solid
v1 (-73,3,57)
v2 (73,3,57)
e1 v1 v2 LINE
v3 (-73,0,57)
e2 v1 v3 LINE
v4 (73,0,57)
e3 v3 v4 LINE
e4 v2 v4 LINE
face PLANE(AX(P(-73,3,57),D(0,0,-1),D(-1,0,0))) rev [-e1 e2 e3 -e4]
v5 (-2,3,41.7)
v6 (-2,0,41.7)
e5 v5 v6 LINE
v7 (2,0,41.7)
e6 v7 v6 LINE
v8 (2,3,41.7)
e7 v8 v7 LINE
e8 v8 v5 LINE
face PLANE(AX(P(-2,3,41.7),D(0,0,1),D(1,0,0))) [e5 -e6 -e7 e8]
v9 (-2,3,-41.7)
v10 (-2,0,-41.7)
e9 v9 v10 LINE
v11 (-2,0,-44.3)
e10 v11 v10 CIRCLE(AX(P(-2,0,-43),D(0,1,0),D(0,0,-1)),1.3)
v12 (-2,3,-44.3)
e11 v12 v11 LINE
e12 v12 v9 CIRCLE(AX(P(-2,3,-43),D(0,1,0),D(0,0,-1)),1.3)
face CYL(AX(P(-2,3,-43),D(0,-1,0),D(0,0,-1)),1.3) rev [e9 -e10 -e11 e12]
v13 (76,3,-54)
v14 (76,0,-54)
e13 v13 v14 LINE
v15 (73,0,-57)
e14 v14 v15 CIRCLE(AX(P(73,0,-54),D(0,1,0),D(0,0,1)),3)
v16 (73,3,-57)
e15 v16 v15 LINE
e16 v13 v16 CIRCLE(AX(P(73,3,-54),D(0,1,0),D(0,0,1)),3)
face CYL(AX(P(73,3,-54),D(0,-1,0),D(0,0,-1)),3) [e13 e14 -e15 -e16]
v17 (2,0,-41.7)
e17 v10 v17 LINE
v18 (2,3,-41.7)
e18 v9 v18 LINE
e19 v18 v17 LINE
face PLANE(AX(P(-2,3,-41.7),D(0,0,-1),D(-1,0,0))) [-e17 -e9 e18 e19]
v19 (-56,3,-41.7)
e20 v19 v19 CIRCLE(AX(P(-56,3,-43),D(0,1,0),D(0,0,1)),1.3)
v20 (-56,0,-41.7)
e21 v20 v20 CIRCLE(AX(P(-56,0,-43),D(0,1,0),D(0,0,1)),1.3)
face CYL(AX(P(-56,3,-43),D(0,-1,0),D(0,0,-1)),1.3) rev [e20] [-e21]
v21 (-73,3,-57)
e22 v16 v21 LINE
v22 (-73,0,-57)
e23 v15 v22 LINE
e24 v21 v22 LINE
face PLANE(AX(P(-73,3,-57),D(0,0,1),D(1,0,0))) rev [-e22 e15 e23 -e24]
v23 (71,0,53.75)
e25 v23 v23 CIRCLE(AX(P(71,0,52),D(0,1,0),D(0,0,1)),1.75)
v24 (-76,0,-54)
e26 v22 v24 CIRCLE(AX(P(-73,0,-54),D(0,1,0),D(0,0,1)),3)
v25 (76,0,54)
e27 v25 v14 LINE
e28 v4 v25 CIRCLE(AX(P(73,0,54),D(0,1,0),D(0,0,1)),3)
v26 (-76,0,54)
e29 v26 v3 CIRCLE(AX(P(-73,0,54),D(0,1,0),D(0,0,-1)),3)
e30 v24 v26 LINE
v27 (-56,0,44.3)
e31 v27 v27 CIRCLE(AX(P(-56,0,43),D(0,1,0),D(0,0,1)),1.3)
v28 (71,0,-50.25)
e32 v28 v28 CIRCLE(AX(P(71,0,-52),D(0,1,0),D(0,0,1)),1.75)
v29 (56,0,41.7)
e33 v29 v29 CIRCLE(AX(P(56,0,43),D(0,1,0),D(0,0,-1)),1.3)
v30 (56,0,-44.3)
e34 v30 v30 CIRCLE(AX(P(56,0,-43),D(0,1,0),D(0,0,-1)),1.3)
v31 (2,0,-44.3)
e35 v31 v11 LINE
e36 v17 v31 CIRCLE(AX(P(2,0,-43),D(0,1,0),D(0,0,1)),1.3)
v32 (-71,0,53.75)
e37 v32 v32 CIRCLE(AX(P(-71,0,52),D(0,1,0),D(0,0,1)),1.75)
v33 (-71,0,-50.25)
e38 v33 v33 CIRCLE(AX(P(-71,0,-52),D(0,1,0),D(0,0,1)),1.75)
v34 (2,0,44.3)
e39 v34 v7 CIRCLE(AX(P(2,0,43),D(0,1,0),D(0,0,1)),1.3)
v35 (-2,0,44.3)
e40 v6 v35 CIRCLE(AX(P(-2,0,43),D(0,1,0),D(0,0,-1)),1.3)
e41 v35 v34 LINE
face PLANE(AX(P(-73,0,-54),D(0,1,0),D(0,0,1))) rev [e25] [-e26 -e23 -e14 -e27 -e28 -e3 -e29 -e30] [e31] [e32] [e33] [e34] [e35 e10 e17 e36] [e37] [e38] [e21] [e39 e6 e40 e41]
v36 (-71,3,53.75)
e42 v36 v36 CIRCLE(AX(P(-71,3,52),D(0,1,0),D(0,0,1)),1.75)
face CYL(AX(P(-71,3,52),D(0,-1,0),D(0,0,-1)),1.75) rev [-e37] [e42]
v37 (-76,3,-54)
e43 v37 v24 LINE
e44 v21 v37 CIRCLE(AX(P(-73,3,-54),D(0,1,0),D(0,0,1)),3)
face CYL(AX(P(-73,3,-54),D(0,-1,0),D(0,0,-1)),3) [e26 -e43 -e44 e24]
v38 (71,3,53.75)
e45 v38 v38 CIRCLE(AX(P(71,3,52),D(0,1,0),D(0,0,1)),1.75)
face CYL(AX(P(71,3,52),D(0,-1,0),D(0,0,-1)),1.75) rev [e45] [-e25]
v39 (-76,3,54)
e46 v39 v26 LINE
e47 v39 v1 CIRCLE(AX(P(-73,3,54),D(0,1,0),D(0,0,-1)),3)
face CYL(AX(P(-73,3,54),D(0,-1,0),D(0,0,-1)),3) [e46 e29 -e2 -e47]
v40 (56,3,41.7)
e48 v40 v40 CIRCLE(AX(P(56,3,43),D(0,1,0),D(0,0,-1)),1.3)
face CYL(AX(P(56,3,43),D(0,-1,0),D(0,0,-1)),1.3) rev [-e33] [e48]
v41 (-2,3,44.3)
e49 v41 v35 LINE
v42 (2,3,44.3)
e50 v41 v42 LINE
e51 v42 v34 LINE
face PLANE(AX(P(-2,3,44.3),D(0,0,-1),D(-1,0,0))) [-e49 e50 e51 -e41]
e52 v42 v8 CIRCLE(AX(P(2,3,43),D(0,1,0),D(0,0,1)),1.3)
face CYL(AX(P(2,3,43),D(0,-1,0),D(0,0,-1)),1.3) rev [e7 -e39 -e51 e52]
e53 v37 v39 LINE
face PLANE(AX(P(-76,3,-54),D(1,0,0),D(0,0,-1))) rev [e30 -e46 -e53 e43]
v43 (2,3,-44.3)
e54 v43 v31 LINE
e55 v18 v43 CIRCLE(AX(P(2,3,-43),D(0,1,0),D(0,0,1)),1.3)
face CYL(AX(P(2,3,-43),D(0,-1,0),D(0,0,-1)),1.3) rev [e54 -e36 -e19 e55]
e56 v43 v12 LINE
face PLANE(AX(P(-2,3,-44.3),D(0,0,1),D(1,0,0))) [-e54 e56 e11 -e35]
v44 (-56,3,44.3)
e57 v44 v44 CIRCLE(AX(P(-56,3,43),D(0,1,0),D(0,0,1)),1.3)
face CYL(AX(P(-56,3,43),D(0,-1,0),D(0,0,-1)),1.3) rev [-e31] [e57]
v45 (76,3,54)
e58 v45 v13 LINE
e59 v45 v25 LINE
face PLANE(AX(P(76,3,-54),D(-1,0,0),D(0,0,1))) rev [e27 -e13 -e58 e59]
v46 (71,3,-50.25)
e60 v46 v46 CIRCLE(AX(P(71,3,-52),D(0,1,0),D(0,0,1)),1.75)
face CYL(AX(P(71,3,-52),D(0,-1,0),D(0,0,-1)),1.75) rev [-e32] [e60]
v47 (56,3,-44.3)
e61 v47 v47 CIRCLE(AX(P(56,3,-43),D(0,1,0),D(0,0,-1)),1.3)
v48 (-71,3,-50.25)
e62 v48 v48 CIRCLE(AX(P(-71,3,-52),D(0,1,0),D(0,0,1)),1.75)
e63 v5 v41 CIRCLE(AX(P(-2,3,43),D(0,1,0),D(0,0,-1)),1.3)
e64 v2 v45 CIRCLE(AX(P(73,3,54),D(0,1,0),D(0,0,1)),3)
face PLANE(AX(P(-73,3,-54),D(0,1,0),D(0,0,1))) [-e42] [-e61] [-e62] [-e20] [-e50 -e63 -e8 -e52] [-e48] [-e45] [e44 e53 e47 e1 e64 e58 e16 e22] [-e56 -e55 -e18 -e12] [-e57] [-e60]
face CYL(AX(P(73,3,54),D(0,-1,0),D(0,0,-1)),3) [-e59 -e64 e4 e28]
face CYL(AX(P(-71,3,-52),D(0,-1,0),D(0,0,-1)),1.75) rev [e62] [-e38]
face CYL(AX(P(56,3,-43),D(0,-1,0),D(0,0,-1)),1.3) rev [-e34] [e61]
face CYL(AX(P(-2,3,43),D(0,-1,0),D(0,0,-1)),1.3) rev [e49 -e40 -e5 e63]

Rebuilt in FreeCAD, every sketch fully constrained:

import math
import FreeCAD as App
import Part
import Sketcher

V = App.Vector

doc = App.newDocument("Part")
body = doc.addObject("PartDesign::Body", "Body")

# Sketch on XZ plane
sketch1 = doc.addObject("Sketcher::SketchObject", "Sketch")
body.addObject(sketch1)
sketch1.AttachmentSupport = (doc.XZ_Plane, [""])
sketch1.MapMode = "FlatFace"
sketch1.addGeometry([
    Part.LineSegment(V(73, -57, 0), V(-73, -57, 0)),  # 0
    Part.ArcOfCircle(Part.Circle(V(-73, -54, 0), V(0, 0, 1), 3), math.radians(180), math.radians(270)),  # 1
    Part.LineSegment(V(-76, -54, 0), V(-76, 54, 0)),  # 2
    Part.ArcOfCircle(Part.Circle(V(-73, 54, 0), V(0, 0, 1), 3), math.radians(90), math.radians(180)),  # 3
    Part.LineSegment(V(-73, 57, 0), V(73, 57, 0)),  # 4
    Part.ArcOfCircle(Part.Circle(V(73, 54, 0), V(0, 0, 1), 3), math.radians(0), math.radians(90)),  # 5
    Part.LineSegment(V(76, 54, 0), V(76, -54, 0)),  # 6
    Part.ArcOfCircle(Part.Circle(V(73, -54, 0), V(0, 0, 1), 3), math.radians(-90), math.radians(0)),  # 7
    Part.Circle(V(71, 52, 0), V(0, 0, 1), 1.8),  # 8
    Part.Circle(V(56, 43, 0), V(0, 0, 1), 1.3),  # 9
    Part.LineSegment(V(-2, 41.7, 0), V(2, 41.7, 0)),  # 10
    Part.ArcOfCircle(Part.Circle(V(2, 43, 0), V(0, 0, 1), 1.3), math.radians(-90), math.radians(90)),  # 11
    Part.LineSegment(V(2, 44.3, 0), V(-2, 44.3, 0)),  # 12
    Part.ArcOfCircle(Part.Circle(V(-2, 43, 0), V(0, 0, 1), 1.3), math.radians(90), math.radians(270)),  # 13
    Part.Circle(V(-71, 52, 0), V(0, 0, 1), 1.8),  # 14
    Part.Circle(V(-56, 43, 0), V(0, 0, 1), 1.3),  # 15
    Part.Circle(V(56, -43, 0), V(0, 0, 1), 1.3),  # 16
    Part.Circle(V(71, -52, 0), V(0, 0, 1), 1.8),  # 17
    Part.LineSegment(V(-2, -44.3, 0), V(2, -44.3, 0)),  # 18
    Part.ArcOfCircle(Part.Circle(V(2, -43, 0), V(0, 0, 1), 1.3), math.radians(-90), math.radians(90)),  # 19
    Part.LineSegment(V(2, -41.7, 0), V(-2, -41.7, 0)),  # 20
    Part.ArcOfCircle(Part.Circle(V(-2, -43, 0), V(0, 0, 1), 1.3), math.radians(90), math.radians(270)),  # 21
    Part.Circle(V(-56, -43, 0), V(0, 0, 1), 1.3),  # 22
    Part.Circle(V(-71, -52, 0), V(0, 0, 1), 1.8),  # 23
], False)
sketch1.addConstraint([
    Sketcher.Constraint("Tangent", 0, 2, 1, 2),
    Sketcher.Constraint("Tangent", 1, 1, 2, 1),
    Sketcher.Constraint("Tangent", 2, 2, 3, 2),
    Sketcher.Constraint("Tangent", 3, 1, 4, 1),
    Sketcher.Constraint("Tangent", 4, 2, 5, 2),
    Sketcher.Constraint("Tangent", 5, 1, 6, 1),
    Sketcher.Constraint("Tangent", 6, 2, 7, 2),
    Sketcher.Constraint("Tangent", 7, 1, 0, 1),
    Sketcher.Constraint("Tangent", 10, 2, 11, 1),
    Sketcher.Constraint("Tangent", 11, 2, 12, 1),
    Sketcher.Constraint("Tangent", 12, 2, 13, 1),
    Sketcher.Constraint("Tangent", 13, 2, 10, 1),
    Sketcher.Constraint("Tangent", 18, 2, 19, 1),
    Sketcher.Constraint("Tangent", 19, 2, 20, 1),
    Sketcher.Constraint("Tangent", 20, 2, 21, 1),
    Sketcher.Constraint("Tangent", 21, 2, 18, 1),
    Sketcher.Constraint("Horizontal", 0),
    Sketcher.Constraint("Vertical", 2),
    Sketcher.Constraint("Horizontal", 4),
    Sketcher.Constraint("Vertical", 6),
    Sketcher.Constraint("Horizontal", 10),
    Sketcher.Constraint("Horizontal", 12),
    Sketcher.Constraint("Horizontal", 18),
    Sketcher.Constraint("Horizontal", 20),
    Sketcher.Constraint("Equal", 1, 3),
    Sketcher.Constraint("Equal", 3, 5),
    Sketcher.Constraint("Equal", 5, 7),
    Sketcher.Constraint("Equal", 9, 11),
    Sketcher.Constraint("Equal", 8, 14),
    Sketcher.Constraint("Equal", 13, 15),
    Sketcher.Constraint("Equal", 15, 16),
    Sketcher.Constraint("Equal", 14, 17),
    Sketcher.Constraint("Equal", 16, 19),
    Sketcher.Constraint("Equal", 21, 22),
    Sketcher.Constraint("Equal", 17, 23),
    Sketcher.Constraint("Symmetric", 1, 3, 5, 3, -1, 1),
    Sketcher.Constraint("Symmetric", 15, 3, 16, 3, -1, 1),
    Sketcher.Constraint("Symmetric", 14, 3, 17, 3, -1, 1),
    Sketcher.Constraint("Symmetric", 13, 3, 19, 3, -1, 1),
    Sketcher.Constraint("Symmetric", 9, 3, 22, 3, -1, 1),
    Sketcher.Constraint("Symmetric", 8, 3, 23, 3, -1, 1),
    Sketcher.Constraint("Symmetric", 8, 3, 14, 3, -2),
    Sketcher.Constraint("Symmetric", 9, 3, 15, 3, -2),
    Sketcher.Constraint("Horizontal", 9, 3, 11, 3),
    Sketcher.Constraint("Vertical", 11, 3, 19, 3),
    Sketcher.Constraint("Vertical", 13, 3, 21, 3),
    Sketcher.Constraint("Radius", 1, 3.0),
    Sketcher.Constraint("Diameter", 8, 3.5),
    Sketcher.Constraint("Diameter", 9, 2.6),
    Sketcher.Constraint("DistanceX", 0, 2, 0, 1, 146.0),
    Sketcher.Constraint("DistanceX", 10, 1, 10, 2, 4.0),
    Sketcher.Constraint("DistanceY", 2, 1, 2, 2, 108.0),
    Sketcher.Constraint("DistanceX", -1, 1, 8, 3, 71.0),
    Sketcher.Constraint("DistanceY", -1, 1, 8, 3, 52.0),
    Sketcher.Constraint("DistanceX", -1, 1, 9, 3, 56.0),
    Sketcher.Constraint("DistanceY", -1, 1, 9, 3, 43.0),
])
pad1 = doc.addObject("PartDesign::Pad", "Pad")
body.addObject(pad1)
pad1.Profile = sketch1
pad1.Length = 3
pad1.Reversed = True

doc.recompute()
